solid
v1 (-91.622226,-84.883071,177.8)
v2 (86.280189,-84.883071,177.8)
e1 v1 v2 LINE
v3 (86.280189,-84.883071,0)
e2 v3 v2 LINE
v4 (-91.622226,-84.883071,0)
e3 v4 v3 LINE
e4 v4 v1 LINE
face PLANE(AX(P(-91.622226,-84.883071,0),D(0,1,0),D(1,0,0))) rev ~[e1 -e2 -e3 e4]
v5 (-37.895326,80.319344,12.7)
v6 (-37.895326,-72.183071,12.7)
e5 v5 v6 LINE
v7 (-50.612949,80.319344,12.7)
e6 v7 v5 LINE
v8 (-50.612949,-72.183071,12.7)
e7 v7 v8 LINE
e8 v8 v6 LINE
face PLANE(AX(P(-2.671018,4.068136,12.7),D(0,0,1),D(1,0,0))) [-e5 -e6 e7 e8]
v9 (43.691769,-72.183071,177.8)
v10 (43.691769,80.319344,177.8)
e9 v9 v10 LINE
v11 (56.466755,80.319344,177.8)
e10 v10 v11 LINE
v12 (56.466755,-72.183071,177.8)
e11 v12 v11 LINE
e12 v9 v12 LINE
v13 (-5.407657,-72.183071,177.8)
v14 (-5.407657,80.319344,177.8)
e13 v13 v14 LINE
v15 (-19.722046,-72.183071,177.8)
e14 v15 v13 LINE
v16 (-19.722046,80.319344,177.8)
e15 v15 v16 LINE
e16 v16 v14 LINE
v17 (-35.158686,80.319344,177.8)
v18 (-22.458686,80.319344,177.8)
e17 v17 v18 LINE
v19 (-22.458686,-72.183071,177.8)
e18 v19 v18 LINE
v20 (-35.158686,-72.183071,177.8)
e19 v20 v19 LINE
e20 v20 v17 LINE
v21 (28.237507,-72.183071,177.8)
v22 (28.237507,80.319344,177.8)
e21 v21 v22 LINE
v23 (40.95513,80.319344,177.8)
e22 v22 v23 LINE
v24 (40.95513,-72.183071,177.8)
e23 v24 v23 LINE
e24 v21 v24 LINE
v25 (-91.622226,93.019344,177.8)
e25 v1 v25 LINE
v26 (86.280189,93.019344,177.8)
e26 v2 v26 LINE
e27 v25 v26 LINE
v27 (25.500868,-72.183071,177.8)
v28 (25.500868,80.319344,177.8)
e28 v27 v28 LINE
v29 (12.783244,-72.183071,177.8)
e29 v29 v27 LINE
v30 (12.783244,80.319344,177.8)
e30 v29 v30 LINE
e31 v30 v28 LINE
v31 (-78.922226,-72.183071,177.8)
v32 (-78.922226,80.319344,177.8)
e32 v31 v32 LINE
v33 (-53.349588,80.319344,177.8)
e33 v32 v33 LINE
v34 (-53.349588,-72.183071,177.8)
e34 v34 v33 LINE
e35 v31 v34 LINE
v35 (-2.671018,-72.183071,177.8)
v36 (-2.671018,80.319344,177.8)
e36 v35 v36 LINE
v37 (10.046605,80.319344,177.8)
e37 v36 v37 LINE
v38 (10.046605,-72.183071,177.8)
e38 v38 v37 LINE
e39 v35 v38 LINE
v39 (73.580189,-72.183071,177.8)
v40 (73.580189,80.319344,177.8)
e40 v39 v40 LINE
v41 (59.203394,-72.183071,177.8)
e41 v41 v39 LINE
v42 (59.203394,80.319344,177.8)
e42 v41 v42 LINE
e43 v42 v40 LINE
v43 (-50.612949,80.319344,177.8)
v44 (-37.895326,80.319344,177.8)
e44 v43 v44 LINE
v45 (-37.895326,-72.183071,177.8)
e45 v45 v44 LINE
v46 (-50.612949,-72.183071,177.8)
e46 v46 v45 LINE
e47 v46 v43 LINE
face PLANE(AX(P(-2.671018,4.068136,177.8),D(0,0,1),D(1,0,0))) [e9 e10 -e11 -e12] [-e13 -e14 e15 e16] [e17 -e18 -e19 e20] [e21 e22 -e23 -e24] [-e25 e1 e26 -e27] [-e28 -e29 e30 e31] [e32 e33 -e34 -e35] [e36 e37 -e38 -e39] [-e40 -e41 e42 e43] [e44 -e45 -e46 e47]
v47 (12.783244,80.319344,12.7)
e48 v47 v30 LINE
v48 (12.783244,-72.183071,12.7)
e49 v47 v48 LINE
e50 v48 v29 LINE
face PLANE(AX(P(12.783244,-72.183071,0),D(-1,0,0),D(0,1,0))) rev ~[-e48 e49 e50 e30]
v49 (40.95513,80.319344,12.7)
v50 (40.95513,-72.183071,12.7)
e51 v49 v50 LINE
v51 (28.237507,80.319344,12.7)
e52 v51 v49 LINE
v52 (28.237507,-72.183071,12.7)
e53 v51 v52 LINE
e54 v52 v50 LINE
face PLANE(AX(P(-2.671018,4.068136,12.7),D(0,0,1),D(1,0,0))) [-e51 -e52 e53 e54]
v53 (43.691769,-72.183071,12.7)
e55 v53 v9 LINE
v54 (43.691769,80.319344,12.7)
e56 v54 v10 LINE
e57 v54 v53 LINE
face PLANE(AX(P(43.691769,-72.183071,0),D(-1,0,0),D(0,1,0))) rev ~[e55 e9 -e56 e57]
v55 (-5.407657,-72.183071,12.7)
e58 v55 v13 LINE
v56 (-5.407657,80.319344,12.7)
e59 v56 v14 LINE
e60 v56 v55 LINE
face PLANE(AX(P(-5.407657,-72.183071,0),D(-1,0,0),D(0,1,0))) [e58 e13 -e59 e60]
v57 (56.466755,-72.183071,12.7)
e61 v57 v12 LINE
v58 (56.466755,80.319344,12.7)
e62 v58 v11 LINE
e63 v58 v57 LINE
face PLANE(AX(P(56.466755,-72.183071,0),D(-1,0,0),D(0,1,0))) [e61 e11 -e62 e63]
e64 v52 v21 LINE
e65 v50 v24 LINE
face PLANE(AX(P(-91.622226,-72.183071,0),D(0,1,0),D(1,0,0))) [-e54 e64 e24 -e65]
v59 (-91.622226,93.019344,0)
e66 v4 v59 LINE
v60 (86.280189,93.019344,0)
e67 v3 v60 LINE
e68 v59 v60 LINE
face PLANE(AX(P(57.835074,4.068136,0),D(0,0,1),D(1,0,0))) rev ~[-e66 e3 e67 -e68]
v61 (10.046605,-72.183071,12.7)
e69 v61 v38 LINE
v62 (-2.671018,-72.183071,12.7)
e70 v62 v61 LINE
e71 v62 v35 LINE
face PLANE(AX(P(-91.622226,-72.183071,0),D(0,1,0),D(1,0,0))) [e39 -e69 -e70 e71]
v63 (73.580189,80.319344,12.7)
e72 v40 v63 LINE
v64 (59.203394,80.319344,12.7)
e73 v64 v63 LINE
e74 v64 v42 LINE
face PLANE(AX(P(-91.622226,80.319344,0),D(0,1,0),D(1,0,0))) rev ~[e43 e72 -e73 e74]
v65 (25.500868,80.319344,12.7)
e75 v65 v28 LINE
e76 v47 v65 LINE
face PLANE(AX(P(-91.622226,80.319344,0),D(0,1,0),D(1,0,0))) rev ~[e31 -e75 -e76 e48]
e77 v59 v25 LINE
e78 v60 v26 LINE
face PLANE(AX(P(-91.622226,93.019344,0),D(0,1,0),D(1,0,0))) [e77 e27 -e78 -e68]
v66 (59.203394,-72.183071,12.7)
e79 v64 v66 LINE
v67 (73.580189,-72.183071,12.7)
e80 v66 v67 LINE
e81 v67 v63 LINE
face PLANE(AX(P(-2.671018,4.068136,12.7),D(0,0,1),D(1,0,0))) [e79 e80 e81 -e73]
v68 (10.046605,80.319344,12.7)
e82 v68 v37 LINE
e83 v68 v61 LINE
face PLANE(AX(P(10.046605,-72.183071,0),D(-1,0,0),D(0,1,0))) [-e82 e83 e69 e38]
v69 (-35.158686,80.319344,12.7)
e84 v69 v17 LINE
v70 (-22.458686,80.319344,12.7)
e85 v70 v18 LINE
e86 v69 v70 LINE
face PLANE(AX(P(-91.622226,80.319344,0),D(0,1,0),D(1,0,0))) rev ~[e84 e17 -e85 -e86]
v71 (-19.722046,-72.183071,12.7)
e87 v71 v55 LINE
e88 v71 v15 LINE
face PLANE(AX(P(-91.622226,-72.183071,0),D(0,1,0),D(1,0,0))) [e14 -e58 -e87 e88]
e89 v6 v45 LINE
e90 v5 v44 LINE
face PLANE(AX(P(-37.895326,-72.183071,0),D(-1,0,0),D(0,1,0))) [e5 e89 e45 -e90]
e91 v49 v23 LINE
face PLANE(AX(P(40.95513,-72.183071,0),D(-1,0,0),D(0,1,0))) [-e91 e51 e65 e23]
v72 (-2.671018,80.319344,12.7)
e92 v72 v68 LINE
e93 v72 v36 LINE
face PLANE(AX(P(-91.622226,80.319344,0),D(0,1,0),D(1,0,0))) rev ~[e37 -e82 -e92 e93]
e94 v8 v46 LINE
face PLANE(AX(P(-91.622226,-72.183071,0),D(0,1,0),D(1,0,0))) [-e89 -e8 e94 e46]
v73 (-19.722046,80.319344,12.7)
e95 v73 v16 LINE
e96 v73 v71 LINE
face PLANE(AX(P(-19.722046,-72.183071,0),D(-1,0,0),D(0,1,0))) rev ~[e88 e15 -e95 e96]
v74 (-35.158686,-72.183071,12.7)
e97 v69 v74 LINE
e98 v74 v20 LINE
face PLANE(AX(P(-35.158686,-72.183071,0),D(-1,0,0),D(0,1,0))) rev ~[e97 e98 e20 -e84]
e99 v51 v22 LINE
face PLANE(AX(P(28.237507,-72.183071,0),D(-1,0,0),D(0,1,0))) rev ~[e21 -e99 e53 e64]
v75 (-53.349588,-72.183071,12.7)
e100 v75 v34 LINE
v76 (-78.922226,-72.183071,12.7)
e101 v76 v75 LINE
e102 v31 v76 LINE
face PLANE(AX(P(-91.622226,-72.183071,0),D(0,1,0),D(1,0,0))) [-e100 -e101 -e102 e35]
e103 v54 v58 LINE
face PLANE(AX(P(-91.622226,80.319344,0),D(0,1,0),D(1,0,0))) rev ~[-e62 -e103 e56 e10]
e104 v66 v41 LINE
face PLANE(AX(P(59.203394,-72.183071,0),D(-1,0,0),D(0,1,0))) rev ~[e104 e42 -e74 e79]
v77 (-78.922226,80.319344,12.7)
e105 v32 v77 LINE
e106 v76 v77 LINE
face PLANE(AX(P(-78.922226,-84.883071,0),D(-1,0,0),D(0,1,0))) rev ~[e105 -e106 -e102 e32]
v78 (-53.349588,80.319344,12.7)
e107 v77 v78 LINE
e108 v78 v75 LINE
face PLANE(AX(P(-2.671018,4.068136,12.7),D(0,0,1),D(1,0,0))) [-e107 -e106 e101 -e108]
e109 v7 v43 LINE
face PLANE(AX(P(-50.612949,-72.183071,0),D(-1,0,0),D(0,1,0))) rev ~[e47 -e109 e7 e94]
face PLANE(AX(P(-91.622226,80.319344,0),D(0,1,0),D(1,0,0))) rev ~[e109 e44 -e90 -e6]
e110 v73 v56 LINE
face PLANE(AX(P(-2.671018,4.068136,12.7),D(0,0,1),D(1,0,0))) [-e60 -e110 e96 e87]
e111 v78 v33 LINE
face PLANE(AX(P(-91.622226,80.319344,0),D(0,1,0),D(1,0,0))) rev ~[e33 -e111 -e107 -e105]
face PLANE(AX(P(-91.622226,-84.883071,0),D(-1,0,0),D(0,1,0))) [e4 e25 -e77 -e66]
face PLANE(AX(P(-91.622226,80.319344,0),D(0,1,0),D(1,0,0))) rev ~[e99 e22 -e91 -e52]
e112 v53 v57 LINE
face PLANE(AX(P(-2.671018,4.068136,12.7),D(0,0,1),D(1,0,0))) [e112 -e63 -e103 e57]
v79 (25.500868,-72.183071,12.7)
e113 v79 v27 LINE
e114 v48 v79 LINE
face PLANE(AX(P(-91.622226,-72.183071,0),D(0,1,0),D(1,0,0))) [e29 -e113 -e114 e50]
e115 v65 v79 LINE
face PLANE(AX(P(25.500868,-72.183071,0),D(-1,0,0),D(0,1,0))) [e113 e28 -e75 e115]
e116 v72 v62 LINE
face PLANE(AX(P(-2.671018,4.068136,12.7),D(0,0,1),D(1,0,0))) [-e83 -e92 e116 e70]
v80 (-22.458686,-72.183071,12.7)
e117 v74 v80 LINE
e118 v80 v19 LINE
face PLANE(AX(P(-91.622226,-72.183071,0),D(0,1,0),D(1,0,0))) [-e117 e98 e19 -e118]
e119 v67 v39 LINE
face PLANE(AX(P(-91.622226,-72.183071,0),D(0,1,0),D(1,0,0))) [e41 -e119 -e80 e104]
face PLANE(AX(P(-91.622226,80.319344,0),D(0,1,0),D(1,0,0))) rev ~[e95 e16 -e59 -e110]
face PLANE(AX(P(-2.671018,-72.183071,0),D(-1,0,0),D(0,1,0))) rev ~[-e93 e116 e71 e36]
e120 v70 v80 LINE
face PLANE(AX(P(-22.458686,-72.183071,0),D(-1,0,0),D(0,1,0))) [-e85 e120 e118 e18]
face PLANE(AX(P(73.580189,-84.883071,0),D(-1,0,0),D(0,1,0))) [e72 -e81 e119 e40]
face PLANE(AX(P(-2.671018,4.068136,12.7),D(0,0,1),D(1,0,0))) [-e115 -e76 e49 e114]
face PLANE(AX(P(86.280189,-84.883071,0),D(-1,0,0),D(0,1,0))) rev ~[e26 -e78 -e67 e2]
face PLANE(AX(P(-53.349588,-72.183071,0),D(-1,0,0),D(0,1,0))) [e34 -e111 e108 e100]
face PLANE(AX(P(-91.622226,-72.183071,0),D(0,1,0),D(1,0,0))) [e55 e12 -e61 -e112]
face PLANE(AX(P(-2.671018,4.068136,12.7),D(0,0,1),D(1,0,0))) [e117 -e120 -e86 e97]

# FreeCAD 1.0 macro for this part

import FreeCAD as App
import Part
import Sketcher
from FreeCAD import Vector
Q = App.Units.Quantity


def faces_at(feature, points):
    """Names of the faces that lie closest to the given points."""
    faces = feature.Shape.Faces
    near = lambda p: min(range(len(faces)), key=lambda i: faces[i].distToShape(Part.Vertex(*p))[0])
    return sorted({f"Face{near(p) + 1}" for p in points})

doc = App.newDocument("Part")
body = doc.addObject("PartDesign::Body", "Body")

# Sketch on XY plane
sketch1 = doc.addObject("Sketcher::SketchObject", "Sketch")
body.addObject(sketch1)
sketch1.AttachmentSupport = (doc.XY_Plane, [""])
sketch1.MapMode = "FlatFace"
sketch1.addGeometry(Part.LineSegment(Vector(-92, 93, 0), Vector(-92, -85, 0)), False)
sketch1.addGeometry(Part.LineSegment(Vector(-92, -85, 0), Vector(86, -85, 0)), False)
sketch1.addGeometry(Part.LineSegment(Vector(86, -85, 0), Vector(86, 93, 0)), False)
sketch1.addGeometry(Part.LineSegment(Vector(86, 93, 0), Vector(-92, 93, 0)), False)
sketch1.addConstraint(Sketcher.Constraint("Coincident", 0, 2, 1, 1))
sketch1.addConstraint(Sketcher.Constraint("Coincident", 1, 2, 2, 1))
sketch1.addConstraint(Sketcher.Constraint("Coincident", 2, 2, 3, 1))
sketch1.addConstraint(Sketcher.Constraint("Coincident", 3, 2, 0, 1))
sketch1.addConstraint(Sketcher.Constraint("Vertical", 0))
sketch1.addConstraint(Sketcher.Constraint("Horizontal", 1))
sketch1.addConstraint(Sketcher.Constraint("Vertical", 2))
sketch1.addConstraint(Sketcher.Constraint("Horizontal", 3))
sketch1.addConstraint(Sketcher.Constraint("Equal", 3, 0))
sketch1.addConstraint(Sketcher.Constraint("DistanceX", 1, 1, 1, 2, 177.902415))
sketch1.addConstraint(Sketcher.Constraint("DistanceY", 0, 2, -1, 1, 84.883071))
sketch1.addConstraint(Sketcher.Constraint("DistanceX", -1, 1, 1, 2, 86.280189))
pad1 = doc.addObject("PartDesign::Pad", "Pad")
body.addObject(pad1)
pad1.Profile = sketch1
pad1.Length = Q("7 in")
doc.recompute()

thickness = doc.addObject("PartDesign::Thickness", "Thickness")
body.addObject(thickness)
thickness.Base = (pad1, faces_at(pad1, [(-2.671, 4.068, 177.8)]))
thickness.Value = Q("0.5 in")
thickness.Reversed = True
thickness.Join = "Arc"

# Sketch on XY plane
sketch2 = doc.addObject("Sketcher::SketchObject", "Sketch001")
body.addObject(sketch2)
sketch2.AttachmentSupport = (doc.XY_Plane, [""])
sketch2.MapMode = "FlatFace"
sketch2.addGeometry(Part.LineSegment(Vector(-53.3, 80.3, 0), Vector(-53.3, -72.2, 0)), False)
sketch2.addGeometry(Part.LineSegment(Vector(-53.3, -72.2, 0), Vector(-50.6, -72.2, 0)), False)
sketch2.addGeometry(Part.LineSegment(Vector(-50.6, -72.2, 0), Vector(-50.6, 80.3, 0)), False)
sketch2.addGeometry(Part.LineSegment(Vector(-50.6, 80.3, 0), Vector(-53.3, 80.3, 0)), False)
sketch2.addConstraint(Sketcher.Constraint("Coincident", 0, 2, 1, 1))
sketch2.addConstraint(Sketcher.Constraint("Coincident", 1, 2, 2, 1))
sketch2.addConstraint(Sketcher.Constraint("Coincident", 2, 2, 3, 1))
sketch2.addConstraint(Sketcher.Constraint("Coincident", 3, 2, 0, 1))
sketch2.addConstraint(Sketcher.Constraint("Vertical", 0))
sketch2.addConstraint(Sketcher.Constraint("Horizontal", 1))
sketch2.addConstraint(Sketcher.Constraint("Vertical", 2))
sketch2.addConstraint(Sketcher.Constraint("Horizontal", 3))
sketch2.addConstraint(Sketcher.Constraint("DistanceX", 1, 1, 1, 2, 2.736639))
sketch2.addConstraint(Sketcher.Constraint("DistanceY", 0, 2, 0, 1, 152.502415))
sketch2.addConstraint(Sketcher.Constraint("DistanceX", 0, 2, -1, 1, 53.349588))
sketch2.addConstraint(Sketcher.Constraint("DistanceY", 0, 2, -1, 1, 72.183071))
pad2 = doc.addObject("PartDesign::Pad", "Pad001")
body.addObject(pad2)
pad2.Profile = sketch2
pad2.Length = Q("7 in")

# Sketch on XY plane
sketch3 = doc.addObject("Sketcher::SketchObject", "Sketch002")
body.addObject(sketch3)
sketch3.AttachmentSupport = (doc.XY_Plane, [""])
sketch3.MapMode = "FlatFace"
sketch3.addGeometry(Part.LineSegment(Vector(-37.9, 80.3, 0), Vector(-37.9, -72.2, 0)), False)
sketch3.addGeometry(Part.LineSegment(Vector(-37.9, -72.2, 0), Vector(-35.2, -72.2, 0)), False)
sketch3.addGeometry(Part.LineSegment(Vector(-35.2, -72.2, 0), Vector(-35.2, 80.3, 0)), False)
sketch3.addGeometry(Part.LineSegment(Vector(-35.2, 80.3, 0), Vector(-37.9, 80.3, 0)), False)
sketch3.addGeometry(Part.LineSegment(Vector(-22.5, 80.3, 0), Vector(-22.5, -72.2, 0)), False)
sketch3.addGeometry(Part.LineSegment(Vector(-22.5, -72.2, 0), Vector(-19.7, -72.2, 0)), False)
sketch3.addGeometry(Part.LineSegment(Vector(-19.7, -72.2, 0), Vector(-19.7, 80.3, 0)), False)
sketch3.addGeometry(Part.LineSegment(Vector(-19.7, 80.3, 0), Vector(-22.5, 80.3, 0)), False)
sketch3.addConstraint(Sketcher.Constraint("Coincident", 0, 2, 1, 1))
sketch3.addConstraint(Sketcher.Constraint("Coincident", 1, 2, 2, 1))
sketch3.addConstraint(Sketcher.Constraint("Coincident", 2, 2, 3, 1))
sketch3.addConstraint(Sketcher.Constraint("Coincident", 3, 2, 0, 1))
sketch3.addConstraint(Sketcher.Constraint("Coincident", 4, 2, 5, 1))
sketch3.addConstraint(Sketcher.Constraint("Coincident", 5, 2, 6, 1))
sketch3.addConstraint(Sketcher.Constraint("Coincident", 6, 2, 7, 1))
sketch3.addConstraint(Sketcher.Constraint("Coincident", 7, 2, 4, 1))
sketch3.addConstraint(Sketcher.Constraint("Vertical", 0))
sketch3.addConstraint(Sketcher.Constraint("Horizontal", 1))
sketch3.addConstraint(Sketcher.Constraint("Vertical", 2))
sketch3.addConstraint(Sketcher.Constraint("Horizontal", 3))
sketch3.addConstraint(Sketcher.Constraint("Vertical", 4))
sketch3.addConstraint(Sketcher.Constraint("Horizontal", 5))
sketch3.addConstraint(Sketcher.Constraint("Vertical", 6))
sketch3.addConstraint(Sketcher.Constraint("Horizontal", 7))
sketch3.addConstraint(Sketcher.Constraint("Horizontal", 1, 2, 4, 2))
sketch3.addConstraint(Sketcher.Constraint("Horizontal", 3, 2, 6, 2))
sketch3.addConstraint(Sketcher.Constraint("Equal", 3, 5))
sketch3.addConstraint(Sketcher.Constraint("DistanceX", 1, 2, 4, 2, Q("0.5 in")))
sketch3.addConstraint(Sketcher.Constraint("DistanceX", 1, 1, 1, 2, 2.736639))
sketch3.addConstraint(Sketcher.Constraint("DistanceY", 0, 2, 0, 1, 152.502415))
sketch3.addConstraint(Sketcher.Constraint("DistanceY", 0, 2, -1, 1, 72.183071))
sketch3.addConstraint(Sketcher.Constraint("DistanceX", 0, 2, -1, 1, 37.895326))
pad3 = doc.addObject("PartDesign::Pad", "Pad002")
body.addObject(pad3)
pad3.Profile = sketch3
pad3.Length = Q("7 in")

# Sketch on XY plane
sketch4 = doc.addObject("Sketcher::SketchObject", "Sketch003")
body.addObject(sketch4)
sketch4.AttachmentSupport = (doc.XY_Plane, [""])
sketch4.MapMode = "FlatFace"
sketch4.addGeometry(Part.LineSegment(Vector(-5.4, 80.3, 0), Vector(-5.4, -72.2, 0)), False)
sketch4.addGeometry(Part.LineSegment(Vector(-5.4, -72.2, 0), Vector(-2.7, -72.2, 0)), False)
sketch4.addGeometry(Part.LineSegment(Vector(-2.7, -72.2, 0), Vector(-2.7, 80.3, 0)), False)
sketch4.addGeometry(Part.LineSegment(Vector(-2.7, 80.3, 0), Vector(-5.4, 80.3, 0)), False)
sketch4.addConstraint(Sketcher.Constraint("Coincident", 0, 2, 1, 1))
sketch4.addConstraint(Sketcher.Constraint("Coincident", 1, 2, 2, 1))
sketch4.addConstraint(Sketcher.Constraint("Coincident", 2, 2, 3, 1))
sketch4.addConstraint(Sketcher.Constraint("Coincident", 3, 2, 0, 1))
sketch4.addConstraint(Sketcher.Constraint("Vertical", 0))
sketch4.addConstraint(Sketcher.Constraint("Horizontal", 1))
sketch4.addConstraint(Sketcher.Constraint("Vertical", 2))
sketch4.addConstraint(Sketcher.Constraint("Horizontal", 3))
sketch4.addConstraint(Sketcher.Constraint("DistanceX", 0, 2, -1, 1, Q("0.2128999 in")))
sketch4.addConstraint(Sketcher.Constraint("DistanceX", 1, 1, 1, 2, 2.736639))
sketch4.addConstraint(Sketcher.Constraint("DistanceY", 0, 2, 0, 1, 152.502415))
sketch4.addConstraint(Sketcher.Constraint("DistanceY", 0, 2, -1, 1, 72.183071))
pad4 = doc.addObject("PartDesign::Pad", "Pad003")
body.addObject(pad4)
pad4.Profile = sketch4
pad4.Length = Q("7 in")

# Sketch on XY plane
sketch5 = doc.addObject("Sketcher::SketchObject", "Sketch004")
body.addObject(sketch5)
sketch5.AttachmentSupport = (doc.XY_Plane, [""])
sketch5.MapMode = "FlatFace"
sketch5.addGeometry(Part.LineSegment(Vector(10, 80.3, 0), Vector(10, -72.2, 0)), False)
sketch5.addGeometry(Part.LineSegment(Vector(10, -72.2, 0), Vector(12.8, -72.2, 0)), False)
sketch5.addGeometry(Part.LineSegment(Vector(12.8, -72.2, 0), Vector(12.8, 80.3, 0)), False)
sketch5.addGeometry(Part.LineSegment(Vector(12.8, 80.3, 0), Vector(10, 80.3, 0)), False)
sketch5.addConstraint(Sketcher.Constraint("Coincident", 0, 2, 1, 1))
sketch5.addConstraint(Sketcher.Constraint("Coincident", 1, 2, 2, 1))
sketch5.addConstraint(Sketcher.Constraint("Coincident", 2, 2, 3, 1))
sketch5.addConstraint(Sketcher.Constraint("Coincident", 3, 2, 0, 1))
sketch5.addConstraint(Sketcher.Constraint("Vertical", 0))
sketch5.addConstraint(Sketcher.Constraint("Horizontal", 1))
sketch5.addConstraint(Sketcher.Constraint("Vertical", 2))
sketch5.addConstraint(Sketcher.Constraint("Horizontal", 3))
sketch5.addConstraint(Sketcher.Constraint("DistanceX", 1, 1, 1, 2, 2.736639))
sketch5.addConstraint(Sketcher.Constraint("DistanceY", 0, 2, 0, 1, 152.502415))
sketch5.addConstraint(Sketcher.Constraint("DistanceY", 0, 2, -1, 1, 72.183071))
sketch5.addConstraint(Sketcher.Constraint("DistanceX", -1, 1, 0, 2, 10.046605))
pad5 = doc.addObject("PartDesign::Pad", "Pad004")
body.addObject(pad5)
pad5.Profile = sketch5
pad5.Length = Q("7 in")

# Sketch on XY plane
sketch6 = doc.addObject("Sketcher::SketchObject", "Sketch005")
body.addObject(sketch6)
sketch6.AttachmentSupport = (doc.XY_Plane, [""])
sketch6.MapMode = "FlatFace"
sketch6.addGeometry(Part.LineSegment(Vector(25.5, 80.3, 0), Vector(25.5, -72.2, 0)), False)
sketch6.addGeometry(Part.LineSegment(Vector(25.5, -72.2, 0), Vector(28.2, -72.2, 0)), False)
sketch6.addGeometry(Part.LineSegment(Vector(28.2, -72.2, 0), Vector(28.2, 80.3, 0)), False)
sketch6.addGeometry(Part.LineSegment(Vector(28.2, 80.3, 0), Vector(25.5, 80.3, 0)), False)
sketch6.addConstraint(Sketcher.Constraint("Coincident", 0, 2, 1, 1))
sketch6.addConstraint(Sketcher.Constraint("Coincident", 1, 2, 2, 1))
sketch6.addConstraint(Sketcher.Constraint("Coincident", 2, 2, 3, 1))
sketch6.addConstraint(Sketcher.Constraint("Coincident", 3, 2, 0, 1))
sketch6.addConstraint(Sketcher.Constraint("Vertical", 0))
sketch6.addConstraint(Sketcher.Constraint("Horizontal", 1))
sketch6.addConstraint(Sketcher.Constraint("Vertical", 2))
sketch6.addConstraint(Sketcher.Constraint("Horizontal", 3))
sketch6.addConstraint(Sketcher.Constraint("DistanceX", 1, 1, 1, 2, 2.736639))
sketch6.addConstraint(Sketcher.Constraint("DistanceY", 0, 2, 0, 1, 152.502415))
sketch6.addConstraint(Sketcher.Constraint("DistanceY", 0, 2, -1, 1, 72.183071))
sketch6.addConstraint(Sketcher.Constraint("DistanceX", -1, 1, 0, 2, 25.500868))
pad6 = doc.addObject("PartDesign::Pad", "Pad005")
body.addObject(pad6)
pad6.Profile = sketch6
pad6.Length = Q("7 in")

# Sketch on XY plane
sketch7 = doc.addObject("Sketcher::SketchObject", "Sketch006")
body.addObject(sketch7)
sketch7.AttachmentSupport = (doc.XY_Plane, [""])
sketch7.MapMode = "FlatFace"
sketch7.addGeometry(Part.LineSegment(Vector(41, 80.3, 0), Vector(41, -72.2, 0)), False)
sketch7.addGeometry(Part.LineSegment(Vector(41, -72.2, 0), Vector(43.7, -72.2, 0)), False)
sketch7.addGeometry(Part.LineSegment(Vector(43.7, -72.2, 0), Vector(43.7, 80.3, 0)), False)
sketch7.addGeometry(Part.LineSegment(Vector(43.7, 80.3, 0), Vector(41, 80.3, 0)), False)
sketch7.addConstraint(Sketcher.Constraint("Coincident", 0, 2, 1, 1))
sketch7.addConstraint(Sketcher.Constraint("Coincident", 1, 2, 2, 1))
sketch7.addConstraint(Sketcher.Constraint("Coincident", 2, 2, 3, 1))
sketch7.addConstraint(Sketcher.Constraint("Coincident", 3, 2, 0, 1))
sketch7.addConstraint(Sketcher.Constraint("Vertical", 0))
sketch7.addConstraint(Sketcher.Constraint("Horizontal", 1))
sketch7.addConstraint(Sketcher.Constraint("Vertical", 2))
sketch7.addConstraint(Sketcher.Constraint("Horizontal", 3))
sketch7.addConstraint(Sketcher.Constraint("DistanceX", 1, 1, 1, 2, 2.736639))
sketch7.addConstraint(Sketcher.Constraint("DistanceY", 0, 2, 0, 1, 152.502415))
sketch7.addConstraint(Sketcher.Constraint("DistanceX", -1, 1, 0, 2, 40.95513))
sketch7.addConstraint(Sketcher.Constraint("DistanceY", 0, 2, -1, 1, 72.183071))
pad7 = doc.addObject("PartDesign::Pad", "Pad006")
body.addObject(pad7)
pad7.Profile = sketch7
pad7.Length = Q("7 in")

# Sketch on XY plane
sketch8 = doc.addObject("Sketcher::SketchObject", "Sketch007")
body.addObject(sketch8)
sketch8.AttachmentSupport = (doc.XY_Plane, [""])
sketch8.MapMode = "FlatFace"
sketch8.addGeometry(Part.LineSegment(Vector(56.5, 80.3, 0), Vector(56.5, -72.2, 0)), False)
sketch8.addGeometry(Part.LineSegment(Vector(56.5, -72.2, 0), Vector(59.2, -72.2, 0)), False)
sketch8.addGeometry(Part.LineSegment(Vector(59.2, -72.2, 0), Vector(59.2, 80.3, 0)), False)
sketch8.addGeometry(Part.LineSegment(Vector(59.2, 80.3, 0), Vector(56.5, 80.3, 0)), False)
sketch8.addConstraint(Sketcher.Constraint("Coincident", 0, 2, 1, 1))
sketch8.addConstraint(Sketcher.Constraint("Coincident", 1, 2, 2, 1))
sketch8.addConstraint(Sketcher.Constraint("Coincident", 2, 2, 3, 1))
sketch8.addConstraint(Sketcher.Constraint("Coincident", 3, 2, 0, 1))
sketch8.addConstraint(Sketcher.Constraint("Vertical", 0))
sketch8.addConstraint(Sketcher.Constraint("Horizontal", 1))
sketch8.addConstraint(Sketcher.Constraint("Vertical", 2))
sketch8.addConstraint(Sketcher.Constraint("Horizontal", 3))
sketch8.addConstraint(Sketcher.Constraint("DistanceX", 1, 1, 1, 2, 2.736639))
sketch8.addConstraint(Sketcher.Constraint("DistanceY", 0, 2, 0, 1, 152.502415))
sketch8.addConstraint(Sketcher.Constraint("DistanceY", 0, 2, -1, 1, 72.183071))
sketch8.addConstraint(Sketcher.Constraint("DistanceX", -1, 1, 0, 2, 56.466755))
pad8 = doc.addObject("PartDesign::Pad", "Pad007")
body.addObject(pad8)
pad8.Profile = sketch8
pad8.Length = Q("7 in")

doc.recompute()
